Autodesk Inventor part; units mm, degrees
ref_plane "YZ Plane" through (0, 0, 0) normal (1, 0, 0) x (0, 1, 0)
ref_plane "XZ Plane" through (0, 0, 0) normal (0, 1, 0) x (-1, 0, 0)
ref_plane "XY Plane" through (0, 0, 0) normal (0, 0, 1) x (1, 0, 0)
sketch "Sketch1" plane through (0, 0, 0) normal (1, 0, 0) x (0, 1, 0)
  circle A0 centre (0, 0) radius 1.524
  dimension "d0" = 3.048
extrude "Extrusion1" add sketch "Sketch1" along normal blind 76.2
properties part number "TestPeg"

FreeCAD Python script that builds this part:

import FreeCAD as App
import Part
import Sketcher
from FreeCAD import Vector
Q = App.Units.Quantity

doc = App.newDocument("Part")
body = doc.addObject("PartDesign::Body", "Body")

# Sketch on YZ plane
sketch1 = body.newObject("Sketcher::SketchObject", "Sketch")
sketch1.AttachmentSupport = (doc.getObject("YZ_Plane"), [""])
sketch1.MapMode = "FlatFace"
sketch1.addGeometry(Part.Circle(Vector(0, 0, 0), Vector(0, 0, 1), 1.5), False)
sketch1.addConstraint(Sketcher.Constraint("Coincident", 0, 3, -1, 1))
sketch1.addConstraint(Sketcher.Constraint("Diameter", 0, Q("0.12 in")))
pad1 = body.newObject("PartDesign::Pad", "Pad")
pad1.Profile = sketch1
pad1.Length = Q("3 in")

doc.recompute()
